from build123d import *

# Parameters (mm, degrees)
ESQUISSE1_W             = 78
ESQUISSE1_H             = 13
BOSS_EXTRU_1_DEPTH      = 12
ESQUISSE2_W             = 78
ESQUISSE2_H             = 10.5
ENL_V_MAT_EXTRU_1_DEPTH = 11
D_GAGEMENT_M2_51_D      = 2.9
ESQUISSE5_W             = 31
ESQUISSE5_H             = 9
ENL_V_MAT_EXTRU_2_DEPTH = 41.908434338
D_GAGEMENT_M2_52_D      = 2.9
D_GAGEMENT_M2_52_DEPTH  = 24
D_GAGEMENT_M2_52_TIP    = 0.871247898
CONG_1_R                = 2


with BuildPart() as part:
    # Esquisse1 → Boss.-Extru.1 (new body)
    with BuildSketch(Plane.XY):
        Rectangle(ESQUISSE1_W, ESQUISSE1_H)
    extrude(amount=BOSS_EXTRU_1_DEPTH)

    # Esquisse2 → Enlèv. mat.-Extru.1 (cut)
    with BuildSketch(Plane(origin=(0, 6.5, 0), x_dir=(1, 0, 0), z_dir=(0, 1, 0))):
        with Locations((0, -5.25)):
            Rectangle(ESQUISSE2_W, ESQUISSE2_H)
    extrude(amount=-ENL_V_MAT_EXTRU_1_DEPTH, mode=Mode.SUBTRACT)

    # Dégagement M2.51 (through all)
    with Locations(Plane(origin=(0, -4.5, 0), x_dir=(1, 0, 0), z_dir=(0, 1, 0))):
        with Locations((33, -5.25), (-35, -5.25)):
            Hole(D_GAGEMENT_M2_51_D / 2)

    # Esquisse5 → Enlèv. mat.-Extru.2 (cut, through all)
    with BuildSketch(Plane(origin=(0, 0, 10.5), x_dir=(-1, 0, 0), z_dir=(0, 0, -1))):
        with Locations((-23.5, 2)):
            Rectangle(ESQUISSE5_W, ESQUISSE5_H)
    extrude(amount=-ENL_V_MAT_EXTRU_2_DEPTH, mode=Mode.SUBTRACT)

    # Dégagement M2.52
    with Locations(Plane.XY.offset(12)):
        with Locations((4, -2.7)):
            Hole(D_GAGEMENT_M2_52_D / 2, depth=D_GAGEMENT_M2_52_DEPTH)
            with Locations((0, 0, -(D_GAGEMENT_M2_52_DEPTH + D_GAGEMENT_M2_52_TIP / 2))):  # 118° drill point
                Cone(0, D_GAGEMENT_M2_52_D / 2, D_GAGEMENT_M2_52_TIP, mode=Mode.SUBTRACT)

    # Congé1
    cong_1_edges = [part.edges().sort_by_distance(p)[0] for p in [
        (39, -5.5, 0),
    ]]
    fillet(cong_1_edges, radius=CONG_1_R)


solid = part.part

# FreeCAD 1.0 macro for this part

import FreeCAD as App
import Part
import Sketcher

V = App.Vector
Q = App.Units.Quantity


def edges_at(feature, points):
    """Names of the edges that pass closest to the given points."""
    edges = feature.Shape.Edges
    near = lambda p: min(range(len(edges)), key=lambda i: edges[i].distToShape(Part.Vertex(*p))[0])
    return sorted({f"Edge{near(p) + 1}" for p in points})

doc = App.newDocument("Part")
body = doc.addObject("PartDesign::Body", "Body")

# Sketch on XY plane
sketch1 = body.newObject("Sketcher::SketchObject", "Sketch")
sketch1.AttachmentSupport = (doc.getObject("XY_Plane"), [""])
sketch1.MapMode = "FlatFace"
sketch1.addGeometry([
    Part.LineSegment(V(-39, 6, 0), V(-39, -6, 0)),
    Part.LineSegment(V(-39, -6, 0), V(39, -6, 0)),
    Part.LineSegment(V(39, -6, 0), V(39, 6, 0)),
    Part.LineSegment(V(39, 6, 0), V(-39, 6, 0)),
], False)
sketch1.addConstraint([
    Sketcher.Constraint("Coincident", 0, 2, 1, 1),
    Sketcher.Constraint("Coincident", 1, 2, 2, 1),
    Sketcher.Constraint("Coincident", 2, 2, 3, 1),
    Sketcher.Constraint("Coincident", 3, 2, 0, 1),
    Sketcher.Constraint("Vertical", 0),
    Sketcher.Constraint("Horizontal", 1),
    Sketcher.Constraint("Vertical", 2),
    Sketcher.Constraint("Horizontal", 3),
    Sketcher.Constraint("Symmetric", 0, 2, 2, 2, -1, 1),
    Sketcher.Constraint("DistanceX", 1, 1, 1, 2, Q("78 mm")),
    Sketcher.Constraint("DistanceY", 0, 2, 0, 1, Q("13 mm")),
])
pad1 = body.newObject("PartDesign::Pad", "Pad")
pad1.Profile = sketch1
pad1.Length = 12

# Sketch on XZ plane
sketch2 = body.newObject("Sketcher::SketchObject", "Sketch001")
sketch2.AttachmentSupport = (doc.getObject("XZ_Plane"), [""])
sketch2.MapMode = "FlatFace"
sketch2.AttachmentOffset = App.Placement(V(0, 0, -6.5), App.Rotation())
sketch2.addGeometry([
    Part.LineSegment(V(-39, 0, 0), V(-39, 10, 0)),
    Part.LineSegment(V(-39, 10, 0), V(39, 10, 0)),
    Part.LineSegment(V(39, 10, 0), V(39, 0, 0)),
    Part.LineSegment(V(39, 0, 0), V(-39, 0, 0)),
], False)
sketch2.addConstraint([
    Sketcher.Constraint("Coincident", 0, 2, 1, 1),
    Sketcher.Constraint("Coincident", 1, 2, 2, 1),
    Sketcher.Constraint("Coincident", 2, 2, 3, 1),
    Sketcher.Constraint("Coincident", 3, 2, 0, 1),
    Sketcher.Constraint("Vertical", 0),
    Sketcher.Constraint("Horizontal", 1),
    Sketcher.Constraint("Vertical", 2),
    Sketcher.Constraint("Horizontal", 3),
    Sketcher.Constraint("Symmetric", 2, 2, 3, 2, -1, 1),
    Sketcher.Constraint("DistanceX", 1, 1, 1, 2, Q("78 mm")),
    Sketcher.Constraint("DistanceY", 0, 1, 0, 2, Q("10.5 mm")),
])
pocket1 = body.newObject("PartDesign::Pocket", "Pocket")
pocket1.Profile = sketch2
pocket1.Length = 11
pocket1.Reversed = True

# Sketch on XZ plane
sketch3 = body.newObject("Sketcher::SketchObject", "Sketch002")
sketch3.AttachmentSupport = (doc.getObject("XZ_Plane"), [""])
sketch3.MapMode = "FlatFace"
sketch3.AttachmentOffset = App.Placement(V(0, 0, 4.5), App.Rotation())
sketch3.addGeometry([
    Part.Circle(V(33, 5.2, 0), V(0, 0, 1), 1.4),
    Part.Circle(V(-35, 5.2, 0), V(0, 0, 1), 1.4),
], False)
sketch3.addConstraint([
    Sketcher.Constraint("Equal", 0, 1),
    Sketcher.Constraint("Horizontal", 0, 3, 1, 3),
    Sketcher.Constraint("Diameter", 0, Q("2.9 mm")),
    Sketcher.Constraint("DistanceX", -1, 1, 0, 3, Q("33 mm")),
    Sketcher.Constraint("DistanceX", 1, 3, -1, 1, Q("35 mm")),
    Sketcher.Constraint("DistanceY", -1, 1, 0, 3, Q("5.25 mm")),
])
doc.recompute()
hole = body.newObject("PartDesign::Hole", "Hole")
hole.Profile = sketch3
hole.ThreadType = "None"
hole.Diameter = 2.9
hole.DepthType = "ThroughAll"
hole.Reversed = True

# Sketch on XY plane
sketch4 = body.newObject("Sketcher::SketchObject", "Sketch003")
sketch4.AttachmentSupport = (doc.getObject("XY_Plane"), [""])
sketch4.MapMode = "FlatFace"
sketch4.AttachmentOffset = App.Placement(V(0, 0, 10.5), App.Rotation())
sketch4.addGeometry([
    Part.LineSegment(V(39, 6, 0), V(39, -2, 0)),
    Part.LineSegment(V(39, -2, 0), V(8, -2, 0)),
    Part.LineSegment(V(8, -2, 0), V(8, 6, 0)),
    Part.LineSegment(V(8, 6, 0), V(39, 6, 0)),
], False)
sketch4.addConstraint([
    Sketcher.Constraint("Coincident", 0, 2, 1, 1),
    Sketcher.Constraint("Coincident", 1, 2, 2, 1),
    Sketcher.Constraint("Coincident", 2, 2, 3, 1),
    Sketcher.Constraint("Coincident", 3, 2, 0, 1),
    Sketcher.Constraint("Vertical", 0),
    Sketcher.Constraint("Horizontal", 1),
    Sketcher.Constraint("Vertical", 2),
    Sketcher.Constraint("Horizontal", 3),
    Sketcher.Constraint("DistanceX", 1, 2, 1, 1, Q("31 mm")),
    Sketcher.Constraint("DistanceY", 0, 2, 0, 1, Q("9 mm")),
    Sketcher.Constraint("DistanceX", -1, 1, 0, 2, Q("39 mm")),
    Sketcher.Constraint("DistanceY", 0, 2, -1, 1, Q("2.5 mm")),
])
pocket2 = body.newObject("PartDesign::Pocket", "Pocket001")
pocket2.Profile = sketch4
pocket2.Type = "ThroughAll"
pocket2.Reversed = True

# Sketch on XY plane
sketch5 = body.newObject("Sketcher::SketchObject", "Sketch004")
sketch5.AttachmentSupport = (doc.getObject("XY_Plane"), [""])
sketch5.MapMode = "FlatFace"
sketch5.AttachmentOffset = App.Placement(V(0, 0, 12), App.Rotation())
sketch5.addGeometry(Part.Circle(V(4, -2.7, 0), V(0, 0, 1), 1.4), False)
sketch5.addConstraint([
    Sketcher.Constraint("Diameter", 0, Q("2.9 mm")),
    Sketcher.Constraint("DistanceX", -1, 1, 0, 3, Q("4 mm")),
    Sketcher.Constraint("DistanceY", 0, 3, -1, 1, Q("2.7 mm")),
])
doc.recompute()
hole2 = body.newObject("PartDesign::Hole", "Hole001")
hole2.Profile = sketch5
hole2.ThreadType = "None"
hole2.Diameter = 2.9
hole2.DepthType = "Dimension"
hole2.Depth = 24
hole2.DrillPoint = "Angled"
hole2.DrillPointAngle = 118
doc.recompute()

fillet = body.newObject("PartDesign::Fillet", "Fillet")
fillet.Base = (hole2, edges_at(hole2, [(39, -5.5, 0)]))
fillet.Radius = 2

doc.recompute()
